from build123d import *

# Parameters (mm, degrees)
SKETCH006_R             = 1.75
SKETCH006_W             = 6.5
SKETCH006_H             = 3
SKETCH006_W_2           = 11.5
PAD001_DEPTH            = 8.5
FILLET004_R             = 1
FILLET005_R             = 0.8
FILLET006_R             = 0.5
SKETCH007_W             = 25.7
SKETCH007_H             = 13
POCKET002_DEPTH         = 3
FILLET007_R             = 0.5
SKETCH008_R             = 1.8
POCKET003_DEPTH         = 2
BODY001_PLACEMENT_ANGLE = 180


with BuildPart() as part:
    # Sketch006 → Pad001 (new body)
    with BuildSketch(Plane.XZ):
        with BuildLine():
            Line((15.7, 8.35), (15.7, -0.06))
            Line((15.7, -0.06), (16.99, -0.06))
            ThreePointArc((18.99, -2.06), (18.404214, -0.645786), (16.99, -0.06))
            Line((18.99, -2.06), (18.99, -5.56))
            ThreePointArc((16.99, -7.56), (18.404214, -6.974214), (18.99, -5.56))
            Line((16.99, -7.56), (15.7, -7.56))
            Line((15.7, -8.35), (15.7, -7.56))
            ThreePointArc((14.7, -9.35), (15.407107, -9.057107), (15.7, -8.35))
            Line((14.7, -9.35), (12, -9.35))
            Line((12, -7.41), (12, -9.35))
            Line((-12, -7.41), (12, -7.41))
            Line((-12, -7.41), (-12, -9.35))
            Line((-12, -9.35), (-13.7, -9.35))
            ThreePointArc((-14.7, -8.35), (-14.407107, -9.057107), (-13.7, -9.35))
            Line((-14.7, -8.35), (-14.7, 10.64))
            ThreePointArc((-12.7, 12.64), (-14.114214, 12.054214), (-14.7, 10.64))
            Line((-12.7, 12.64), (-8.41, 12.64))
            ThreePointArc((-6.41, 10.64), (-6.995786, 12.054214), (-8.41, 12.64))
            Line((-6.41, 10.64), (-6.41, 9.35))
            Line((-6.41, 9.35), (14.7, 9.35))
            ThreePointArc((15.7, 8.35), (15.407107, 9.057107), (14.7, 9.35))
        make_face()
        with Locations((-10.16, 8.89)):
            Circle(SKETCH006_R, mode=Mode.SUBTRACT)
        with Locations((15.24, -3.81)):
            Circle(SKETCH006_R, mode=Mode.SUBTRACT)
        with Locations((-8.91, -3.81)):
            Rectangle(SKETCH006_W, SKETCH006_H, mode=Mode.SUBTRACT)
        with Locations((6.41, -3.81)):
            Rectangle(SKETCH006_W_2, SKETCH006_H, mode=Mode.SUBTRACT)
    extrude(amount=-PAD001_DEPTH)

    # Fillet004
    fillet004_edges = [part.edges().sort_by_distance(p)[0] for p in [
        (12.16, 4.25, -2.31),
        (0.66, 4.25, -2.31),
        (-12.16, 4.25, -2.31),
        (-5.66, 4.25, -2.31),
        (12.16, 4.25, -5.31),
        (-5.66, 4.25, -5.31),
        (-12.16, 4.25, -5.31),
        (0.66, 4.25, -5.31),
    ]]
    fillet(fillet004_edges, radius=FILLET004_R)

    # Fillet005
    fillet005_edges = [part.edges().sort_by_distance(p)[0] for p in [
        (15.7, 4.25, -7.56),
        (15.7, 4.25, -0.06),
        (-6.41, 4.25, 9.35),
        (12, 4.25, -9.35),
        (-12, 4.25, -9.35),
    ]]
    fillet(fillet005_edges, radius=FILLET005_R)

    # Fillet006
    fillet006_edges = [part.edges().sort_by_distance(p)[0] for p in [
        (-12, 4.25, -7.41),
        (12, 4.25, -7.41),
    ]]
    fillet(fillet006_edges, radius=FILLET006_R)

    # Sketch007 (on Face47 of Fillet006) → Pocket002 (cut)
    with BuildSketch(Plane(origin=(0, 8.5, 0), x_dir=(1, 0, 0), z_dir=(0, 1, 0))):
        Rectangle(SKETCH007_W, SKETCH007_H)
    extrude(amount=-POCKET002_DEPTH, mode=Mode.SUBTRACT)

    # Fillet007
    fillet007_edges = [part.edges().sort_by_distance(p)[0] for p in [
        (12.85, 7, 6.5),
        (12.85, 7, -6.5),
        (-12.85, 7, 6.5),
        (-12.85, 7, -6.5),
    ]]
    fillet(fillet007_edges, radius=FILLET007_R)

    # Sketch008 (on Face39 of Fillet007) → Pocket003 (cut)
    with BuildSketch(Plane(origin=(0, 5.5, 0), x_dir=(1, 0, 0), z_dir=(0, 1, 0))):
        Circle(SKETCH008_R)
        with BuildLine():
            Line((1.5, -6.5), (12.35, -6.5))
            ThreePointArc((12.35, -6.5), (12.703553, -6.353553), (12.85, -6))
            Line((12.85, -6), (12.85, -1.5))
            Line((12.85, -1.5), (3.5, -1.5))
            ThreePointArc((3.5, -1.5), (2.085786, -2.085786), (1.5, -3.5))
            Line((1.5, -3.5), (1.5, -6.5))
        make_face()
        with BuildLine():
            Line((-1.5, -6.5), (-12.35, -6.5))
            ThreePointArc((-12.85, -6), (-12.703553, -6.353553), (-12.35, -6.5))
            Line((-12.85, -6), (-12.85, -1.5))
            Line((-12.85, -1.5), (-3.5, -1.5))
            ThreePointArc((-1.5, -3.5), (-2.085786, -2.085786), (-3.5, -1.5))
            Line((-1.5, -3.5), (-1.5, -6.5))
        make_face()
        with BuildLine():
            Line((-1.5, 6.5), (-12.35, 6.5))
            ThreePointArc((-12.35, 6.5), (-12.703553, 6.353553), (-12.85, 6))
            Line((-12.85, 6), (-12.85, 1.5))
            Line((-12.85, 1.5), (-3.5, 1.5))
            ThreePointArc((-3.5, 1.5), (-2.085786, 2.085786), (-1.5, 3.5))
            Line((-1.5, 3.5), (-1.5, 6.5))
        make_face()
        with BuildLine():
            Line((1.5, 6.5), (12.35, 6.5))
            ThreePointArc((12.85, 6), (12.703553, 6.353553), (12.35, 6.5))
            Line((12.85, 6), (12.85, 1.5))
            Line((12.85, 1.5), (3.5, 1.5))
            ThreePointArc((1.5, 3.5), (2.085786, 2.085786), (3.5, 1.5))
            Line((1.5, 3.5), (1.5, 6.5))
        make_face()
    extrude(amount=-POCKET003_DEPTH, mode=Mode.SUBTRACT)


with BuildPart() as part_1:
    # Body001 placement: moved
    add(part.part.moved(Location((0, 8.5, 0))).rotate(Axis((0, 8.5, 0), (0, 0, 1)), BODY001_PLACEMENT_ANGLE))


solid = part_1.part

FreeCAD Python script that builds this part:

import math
import FreeCAD as App
import Part
import Sketcher

V = App.Vector


def edges_at(feature, points):
    """Names of the edges that pass closest to the given points."""
    edges = feature.Shape.Edges
    near = lambda p: min(range(len(edges)), key=lambda i: edges[i].distToShape(Part.Vertex(*p))[0])
    return sorted({f"Edge{near(p) + 1}" for p in points})


def add_polygon(sketch, points):
    """Adds a closed chain of lines whose ends are joined by coincident constraints."""
    first, n = sketch.GeometryCount, len(points)
    for a, b in zip(points, points[1:] + points[:1]):
        sketch.addGeometry(Part.LineSegment(App.Vector(*a, 0), App.Vector(*b, 0)), False)
    for i in range(n):
        sketch.addConstraint(Sketcher.Constraint("Coincident", first + i, 2, first + (i + 1) % n, 1))

doc = App.newDocument("Part")
body = doc.addObject("PartDesign::Body", "Body")

# Sketch on XZ plane
sketch1 = doc.addObject("Sketcher::SketchObject", "Sketch")
body.addObject(sketch1)
sketch1.AttachmentSupport = (doc.XZ_Plane, [""])
sketch1.MapMode = "FlatFace"
sketch1.addGeometry(Part.LineSegment(V(15.7, -0.1, 0), V(15.7, 8.3, 0)), False)  # 0
sketch1.addGeometry(Part.ArcOfCircle(Part.Circle(V(14.7, 8.4, 0), V(0, 0, 1), 1), math.radians(0), math.radians(90)), False)  # 1
sketch1.addGeometry(Part.LineSegment(V(14.7, 9.3, 0), V(-6.4, 9.3, 0)), False)  # 2
sketch1.addGeometry(Part.LineSegment(V(-6.4, 9.3, 0), V(-6.4, 10.6, 0)), False)  # 3
sketch1.addGeometry(Part.ArcOfCircle(Part.Circle(V(-8.4, 10.6, 0), V(0, 0, 1), 2), math.radians(0), math.radians(90)), False)  # 4
sketch1.addGeometry(Part.LineSegment(V(-8.4, 12.6, 0), V(-12.7, 12.6, 0)), False)  # 5
sketch1.addGeometry(Part.ArcOfCircle(Part.Circle(V(-12.7, 10.6, 0), V(0, 0, 1), 2), math.radians(90), math.radians(180)), False)  # 6
sketch1.addGeometry(Part.LineSegment(V(-14.7, 10.6, 0), V(-14.7, -8.3, 0)), False)  # 7
sketch1.addGeometry(Part.ArcOfCircle(Part.Circle(V(-13.7, -8.4, 0), V(0, 0, 1), 1), math.radians(180), math.radians(270)), False)  # 8
sketch1.addGeometry(Part.LineSegment(V(-13.7, -9.3, 0), V(-12, -9.3, 0)), False)  # 9
sketch1.addGeometry(Part.LineSegment(V(-12, -9.3, 0), V(-12, -7.4, 0)), False)  # 10
sketch1.addGeometry(Part.LineSegment(V(-12, -7.4, 0), V(12, -7.4, 0)), False)  # 11
sketch1.addGeometry(Part.LineSegment(V(12, -7.4, 0), V(12, -9.3, 0)), False)  # 12
sketch1.addGeometry(Part.LineSegment(V(12, -9.3, 0), V(14.7, -9.3, 0)), False)  # 13
sketch1.addGeometry(Part.ArcOfCircle(Part.Circle(V(14.7, -8.4, 0), V(0, 0, 1), 1), math.radians(-90), math.radians(0)), False)  # 14
sketch1.addGeometry(Part.LineSegment(V(15.7, -8.3, 0), V(15.7, -7.6, 0)), False)  # 15
sketch1.addGeometry(Part.LineSegment(V(15.7, -7.6, 0), V(17, -7.6, 0)), False)  # 16
sketch1.addGeometry(Part.ArcOfCircle(Part.Circle(V(17, -5.6, 0), V(0, 0, 1), 2), math.radians(-90), math.radians(0)), False)  # 17
sketch1.addGeometry(Part.LineSegment(V(19, -5.6, 0), V(19, -2.1, 0)), False)  # 18
sketch1.addGeometry(Part.ArcOfCircle(Part.Circle(V(17, -2.1, 0), V(0, 0, 1), 2), math.radians(0), math.radians(90)), False)  # 19
sketch1.addGeometry(Part.LineSegment(V(17, -0.1, 0), V(15.7, -0.1, 0)), False)  # 20
sketch1.addGeometry(Part.Circle(V(15.2, -3.8, 0), V(0, 0, 1), 1.8), False)  # 21
add_polygon(sketch1, [(0.7, -5.3), (0.7, -2.3), (12.2, -2.3), (12.2, -5.3)])  # lines 22-25
add_polygon(sketch1, [(-12.2, -5.3), (-12.2, -2.3), (-5.7, -2.3), (-5.7, -5.3)])  # lines 26-29
sketch1.addGeometry(Part.Circle(V(-10.2, 8.9, 0), V(0, 0, 1), 1.8), False)  # 30
sketch1.addConstraint([
    Sketcher.Constraint("Tangent", 0, 2, 1, 1),
    Sketcher.Constraint("Tangent", 1, 2, 2, 1),
    Sketcher.Constraint("Coincident", 2, 2, 3, 1),
    Sketcher.Constraint("Tangent", 3, 2, 4, 1),
    Sketcher.Constraint("Tangent", 4, 2, 5, 1),
    Sketcher.Constraint("Tangent", 5, 2, 6, 1),
    Sketcher.Constraint("Tangent", 6, 2, 7, 1),
    Sketcher.Constraint("Tangent", 7, 2, 8, 1),
    Sketcher.Constraint("Tangent", 8, 2, 9, 1),
    Sketcher.Constraint("Coincident", 9, 2, 10, 1),
    Sketcher.Constraint("Coincident", 10, 2, 11, 1),
    Sketcher.Constraint("Coincident", 11, 2, 12, 1),
    Sketcher.Constraint("Coincident", 12, 2, 13, 1),
    Sketcher.Constraint("Tangent", 13, 2, 14, 1),
    Sketcher.Constraint("Tangent", 14, 2, 15, 1),
    Sketcher.Constraint("Coincident", 15, 2, 16, 1),
    Sketcher.Constraint("Tangent", 16, 2, 17, 1),
    Sketcher.Constraint("Tangent", 17, 2, 18, 1),
    Sketcher.Constraint("Tangent", 18, 2, 19, 1),
    Sketcher.Constraint("Tangent", 19, 2, 20, 1),
    Sketcher.Constraint("Coincident", 20, 2, 0, 1),
    Sketcher.Constraint("Vertical", 0),
    Sketcher.Constraint("Horizontal", 2),
    Sketcher.Constraint("Vertical", 3),
    Sketcher.Constraint("Horizontal", 5),
    Sketcher.Constraint("Vertical", 7),
    Sketcher.Constraint("Horizontal", 9),
    Sketcher.Constraint("Vertical", 10),
    Sketcher.Constraint("Horizontal", 11),
    Sketcher.Constraint("Vertical", 12),
    Sketcher.Constraint("Horizontal", 13),
    Sketcher.Constraint("Vertical", 15),
    Sketcher.Constraint("Horizontal", 16),
    Sketcher.Constraint("Vertical", 18),
    Sketcher.Constraint("Horizontal", 20),
    Sketcher.Constraint("Vertical", 22),
    Sketcher.Constraint("Horizontal", 23),
    Sketcher.Constraint("Vertical", 24),
    Sketcher.Constraint("Horizontal", 25),
    Sketcher.Constraint("Vertical", 26),
    Sketcher.Constraint("Horizontal", 27),
    Sketcher.Constraint("Vertical", 28),
    Sketcher.Constraint("Horizontal", 29),
    Sketcher.Constraint("Equal", 4, 6),
    Sketcher.Constraint("Equal", 1, 8),
    Sketcher.Constraint("Equal", 8, 14),
    Sketcher.Constraint("Equal", 6, 17),
    Sketcher.Constraint("Equal", 17, 19),
    Sketcher.Constraint("Equal", 21, 30),
    Sketcher.Constraint("Symmetric", 9, 2, 12, 2, -2),
    Sketcher.Constraint("Symmetric", 23, 2, 26, 2, -2),
    Sketcher.Constraint("Symmetric", 1, 3, 14, 3, -1),
    Sketcher.Constraint("Horizontal", 25, 2, 28, 2),
    Sketcher.Constraint("Equal", 20, 3),
    Sketcher.Constraint("Radius", 1, 0.999999),
    Sketcher.Constraint("Radius", 4, 1.999999),
    Sketcher.Constraint("Diameter", 21, 3.5),
    Sketcher.Constraint("DistanceX", 11, 1, 11, 2, 24.0),
    Sketcher.Constraint("DistanceY", 22, 1, 22, 2, 3.0),
    Sketcher.Constraint("DistanceX", 9, 1, 9, 2, 1.7),
    Sketcher.Constraint("DistanceX", 13, 1, 13, 2, 2.7),
    Sketcher.Constraint("DistanceX", 23, 1, 23, 2, 11.5),
    Sketcher.Constraint("DistanceX", 27, 1, 27, 2, 6.5),
    Sketcher.Constraint("DistanceY", 18, 1, 18, 2, 3.5),
    Sketcher.Constraint("DistanceX", 2, 2, 2, 1, 21.11),
    Sketcher.Constraint("DistanceX", 16, 1, 16, 2, 1.29),
    Sketcher.Constraint("DistanceY", 0, 1, 0, 2, 8.41),
    Sketcher.Constraint("DistanceY", 7, 2, 7, 1, 18.99),
    Sketcher.Constraint("DistanceY", 10, 1, 10, 2, 1.94),
    Sketcher.Constraint("DistanceX", 30, 3, 21, 3, 25.4),
    Sketcher.Constraint("DistanceY", 21, 3, 30, 3, 12.7),
    Sketcher.Constraint("DistanceY", 10, 2, 30, 3, 16.3),
    Sketcher.Constraint("DistanceY", 11, 2, 22, 2, 5.1),
    Sketcher.Constraint("DistanceX", -1, 1, 21, 3, 15.24),
    Sketcher.Constraint("DistanceX", -1, 1, 22, 2, 0.66),
])
pad1 = doc.addObject("PartDesign::Pad", "Pad")
body.addObject(pad1)
pad1.Profile = sketch1
pad1.Length = 8.5
pad1.Reversed = True
doc.recompute()

fillet = doc.addObject("PartDesign::Fillet", "Fillet")
body.addObject(fillet)
fillet.Base = (pad1, edges_at(pad1, [
    (12.16, 4.25, -2.31),
    (0.66, 4.25, -2.31),
    (-12.16, 4.25, -2.31),
    (-5.66, 4.25, -2.31),
    (12.16, 4.25, -5.31),
    (-5.66, 4.25, -5.31),
    (-12.16, 4.25, -5.31),
    (0.66, 4.25, -5.31),
]))
fillet.Radius = 1
doc.recompute()

fillet2 = doc.addObject("PartDesign::Fillet", "Fillet001")
body.addObject(fillet2)
fillet2.Base = (fillet, edges_at(fillet, [
    (15.7, 4.25, -7.56),
    (15.7, 4.25, -0.06),
    (-6.41, 4.25, 9.35),
    (12, 4.25, -9.35),
    (-12, 4.25, -9.35),
]))
fillet2.Radius = 0.8
doc.recompute()

fillet3 = doc.addObject("PartDesign::Fillet", "Fillet002")
body.addObject(fillet3)
fillet3.Base = (fillet2, edges_at(fillet2, [(-12, 4.25, -7.41), (12, 4.25, -7.41)]))
fillet3.Radius = 0.5

# Sketch on XZ plane
sketch2 = doc.addObject("Sketcher::SketchObject", "Sketch001")
body.addObject(sketch2)
sketch2.AttachmentSupport = (doc.XZ_Plane, [""])
sketch2.MapMode = "FlatFace"
sketch2.AttachmentOffset = App.Placement(V(0, 0, -8.5), App.Rotation())
add_polygon(sketch2, [(-13, -6), (-13, 6), (13, 6), (13, -6)])  # lines 0-3
sketch2.addConstraint([
    Sketcher.Constraint("Vertical", 0),
    Sketcher.Constraint("Horizontal", 1),
    Sketcher.Constraint("Vertical", 2),
    Sketcher.Constraint("Horizontal", 3),
    Sketcher.Constraint("Symmetric", 0, 2, 2, 2, -1, 1),
    Sketcher.Constraint("DistanceY", 0, 1, 0, 2, 13.0),
    Sketcher.Constraint("DistanceX", 1, 1, 1, 2, 25.7),
])
pocket1 = doc.addObject("PartDesign::Pocket", "Pocket")
body.addObject(pocket1)
pocket1.Profile = sketch2
pocket1.Length = 3
pocket1.Reversed = True
doc.recompute()

fillet4 = doc.addObject("PartDesign::Fillet", "Fillet003")
body.addObject(fillet4)
fillet4.Base = (pocket1, edges_at(pocket1, [
    (12.85, 7, 6.5),
    (12.85, 7, -6.5),
    (-12.85, 7, 6.5),
    (-12.85, 7, -6.5),
]))
fillet4.Radius = 0.5

# Sketch on XZ plane
sketch3 = doc.addObject("Sketcher::SketchObject", "Sketch002")
body.addObject(sketch3)
sketch3.AttachmentSupport = (doc.XZ_Plane, [""])
sketch3.MapMode = "FlatFace"
sketch3.AttachmentOffset = App.Placement(V(0, 0, -5.5), App.Rotation())
sketch3.addGeometry([
    Part.Circle(V(0, 0, 0), V(0, 0, 1), 1.8),  # 0
    Part.LineSegment(V(1.5, 6.5, 0), V(12.3, 6.5, 0)),  # 1
    Part.ArcOfCircle(Part.Circle(V(12.3, 6, 0), V(0, 0, 1), 0.5), math.radians(0), math.radians(90)),  # 2
    Part.LineSegment(V(12.8, 6, 0), V(12.8, 1.5, 0)),  # 3
    Part.LineSegment(V(12.8, 1.5, 0), V(3.5, 1.5, 0)),  # 4
    Part.ArcOfCircle(Part.Circle(V(3.5, 3.5, 0), V(0, 0, 1), 2), math.radians(180), math.radians(270)),  # 5
    Part.LineSegment(V(1.5, 3.5, 0), V(1.5, 6.5, 0)),  # 6
    Part.LineSegment(V(-12.3, 6.5, 0), V(-1.5, 6.5, 0)),  # 7
    Part.LineSegment(V(-1.5, 6.5, 0), V(-1.5, 3.5, 0)),  # 8
    Part.ArcOfCircle(Part.Circle(V(-3.5, 3.5, 0), V(0, 0, 1), 2), math.radians(-90), math.radians(0)),  # 9
    Part.LineSegment(V(-3.5, 1.5, 0), V(-12.8, 1.5, 0)),  # 10
    Part.LineSegment(V(-12.8, 1.5, 0), V(-12.8, 6, 0)),  # 11
    Part.ArcOfCircle(Part.Circle(V(-12.3, 6, 0), V(0, 0, 1), 0.5), math.radians(90), math.radians(180)),  # 12
    Part.LineSegment(V(-1.5, -6.5, 0), V(-12.3, -6.5, 0)),  # 13
    Part.ArcOfCircle(Part.Circle(V(-12.3, -6, 0), V(0, 0, 1), 0.5), math.radians(-180), math.radians(-90)),  # 14
    Part.LineSegment(V(-12.8, -6, 0), V(-12.8, -1.5, 0)),  # 15
    Part.LineSegment(V(-12.8, -1.5, 0), V(-3.5, -1.5, 0)),  # 16
    Part.ArcOfCircle(Part.Circle(V(-3.5, -3.5, 0), V(0, 0, 1), 2), math.radians(0), math.radians(90)),  # 17
    Part.LineSegment(V(-1.5, -3.5, 0), V(-1.5, -6.5, 0)),  # 18
    Part.LineSegment(V(12.3, -6.5, 0), V(1.5, -6.5, 0)),  # 19
    Part.LineSegment(V(1.5, -6.5, 0), V(1.5, -3.5, 0)),  # 20
    Part.ArcOfCircle(Part.Circle(V(3.5, -3.5, 0), V(0, 0, 1), 2), math.radians(90), math.radians(180)),  # 21
    Part.LineSegment(V(3.5, -1.5, 0), V(12.8, -1.5, 0)),  # 22
    Part.LineSegment(V(12.8, -1.5, 0), V(12.8, -6, 0)),  # 23
    Part.ArcOfCircle(Part.Circle(V(12.3, -6, 0), V(0, 0, 1), 0.5), math.radians(-90), math.radians(0)),  # 24
], False)
sketch3.addConstraint([
    Sketcher.Constraint("Coincident", 1, 2, 2, 2),
    Sketcher.Constraint("Coincident", 2, 1, 3, 1),
    Sketcher.Constraint("Coincident", 3, 2, 4, 1),
    Sketcher.Constraint("Tangent", 4, 2, 5, 2),
    Sketcher.Constraint("Tangent", 5, 1, 6, 1),
    Sketcher.Constraint("Coincident", 6, 2, 1, 1),
    Sketcher.Constraint("Coincident", 7, 2, 8, 1),
    Sketcher.Constraint("Tangent", 8, 2, 9, 2),
    Sketcher.Constraint("Tangent", 9, 1, 10, 1),
    Sketcher.Constraint("Coincident", 10, 2, 11, 1),
    Sketcher.Constraint("Coincident", 11, 2, 12, 2),
    Sketcher.Constraint("Coincident", 12, 1, 7, 1),
    Sketcher.Constraint("Coincident", 13, 2, 14, 2),
    Sketcher.Constraint("Coincident", 14, 1, 15, 1),
    Sketcher.Constraint("Coincident", 15, 2, 16, 1),
    Sketcher.Constraint("Tangent", 16, 2, 17, 2),
    Sketcher.Constraint("Tangent", 17, 1, 18, 1),
    Sketcher.Constraint("Coincident", 18, 2, 13, 1),
    Sketcher.Constraint("Coincident", 19, 2, 20, 1),
    Sketcher.Constraint("Tangent", 20, 2, 21, 2),
    Sketcher.Constraint("Tangent", 21, 1, 22, 1),
    Sketcher.Constraint("Coincident", 22, 2, 23, 1),
    Sketcher.Constraint("Coincident", 23, 2, 24, 2),
    Sketcher.Constraint("Coincident", 24, 1, 19, 1),
    Sketcher.Constraint("Horizontal", 1),
    Sketcher.Constraint("Vertical", 3),
    Sketcher.Constraint("Horizontal", 4),
    Sketcher.Constraint("Vertical", 6),
    Sketcher.Constraint("Horizontal", 7),
    Sketcher.Constraint("Vertical", 8),
    Sketcher.Constraint("Horizontal", 10),
    Sketcher.Constraint("Vertical", 11),
    Sketcher.Constraint("Horizontal", 13),
    Sketcher.Constraint("Vertical", 15),
    Sketcher.Constraint("Horizontal", 16),
    Sketcher.Constraint("Vertical", 18),
    Sketcher.Constraint("Horizontal", 19),
    Sketcher.Constraint("Vertical", 20),
    Sketcher.Constraint("Horizontal", 22),
    Sketcher.Constraint("Vertical", 23),
    Sketcher.Constraint("Coincident", 0, 3, -1, 1),
    Sketcher.Constraint("Equal", 5, 9),
    Sketcher.Constraint("Equal", 2, 12),
    Sketcher.Constraint("Equal", 12, 14),
    Sketcher.Constraint("Equal", 9, 17),
    Sketcher.Constraint("Equal", 17, 21),
    Sketcher.Constraint("Equal", 14, 24),
    Sketcher.Constraint("Symmetric", 2, 3, 14, 3, -1, 1),
    Sketcher.Constraint("Symmetric", 5, 3, 17, 3, -1, 1),
    Sketcher.Constraint("Symmetric", 9, 3, 21, 3, -1, 1),
    Sketcher.Constraint("Symmetric", 12, 3, 24, 3, -1, 1),
    Sketcher.Constraint("Symmetric", 5, 3, 9, 3, -2),
    Sketcher.Constraint("Symmetric", 2, 3, 12, 3, -2),
    Sketcher.Constraint("Horizontal", 12, 3, 2, 1),
    Sketcher.Constraint("Horizontal", 2, 1, 11, 2),
    Sketcher.Constraint("Horizontal", 24, 3, 14, 1),
    Sketcher.Constraint("Horizontal", 14, 1, 23, 2),
    Sketcher.Constraint("Vertical", 24, 3, 1, 2),
    Sketcher.Constraint("Vertical", 14, 3, 12, 1),
    Sketcher.Constraint("Vertical", 12, 1, 13, 2),
    Sketcher.Constraint("Vertical", 1, 2, 24, 1),
    Sketcher.Constraint("Radius", 5, 1.999999),
    Sketcher.Constraint("Diameter", 0, 3.6),
    Sketcher.Constraint("Radius", 2, 0.500001),
    Sketcher.Constraint("DistanceY", 6, 1, 6, 2, 3.0),
    Sketcher.Constraint("DistanceY", -1, 1, 2, 3, 5.999999),
    Sketcher.Constraint("DistanceX", 9, 3, 4, 2, 6.999999),
    Sketcher.Constraint("DistanceX", 1, 1, 1, 2, 10.85),
])
pocket2 = doc.addObject("PartDesign::Pocket", "Pocket001")
body.addObject(pocket2)
pocket2.Profile = sketch3
pocket2.Length = 2
pocket2.Reversed = True
body2 = doc.addObject("PartDesign::Body", "Body001")
doc.recompute()

body.Placement = App.Placement(V(0, 8.5, 0), App.Rotation(V(0, 0, 1), 180))
boolean = doc.addObject("PartDesign::Boolean", "Boolean")
body2.addObject(boolean)
boolean.Type = "Fuse"
boolean.addObjects([body])

doc.recompute()
